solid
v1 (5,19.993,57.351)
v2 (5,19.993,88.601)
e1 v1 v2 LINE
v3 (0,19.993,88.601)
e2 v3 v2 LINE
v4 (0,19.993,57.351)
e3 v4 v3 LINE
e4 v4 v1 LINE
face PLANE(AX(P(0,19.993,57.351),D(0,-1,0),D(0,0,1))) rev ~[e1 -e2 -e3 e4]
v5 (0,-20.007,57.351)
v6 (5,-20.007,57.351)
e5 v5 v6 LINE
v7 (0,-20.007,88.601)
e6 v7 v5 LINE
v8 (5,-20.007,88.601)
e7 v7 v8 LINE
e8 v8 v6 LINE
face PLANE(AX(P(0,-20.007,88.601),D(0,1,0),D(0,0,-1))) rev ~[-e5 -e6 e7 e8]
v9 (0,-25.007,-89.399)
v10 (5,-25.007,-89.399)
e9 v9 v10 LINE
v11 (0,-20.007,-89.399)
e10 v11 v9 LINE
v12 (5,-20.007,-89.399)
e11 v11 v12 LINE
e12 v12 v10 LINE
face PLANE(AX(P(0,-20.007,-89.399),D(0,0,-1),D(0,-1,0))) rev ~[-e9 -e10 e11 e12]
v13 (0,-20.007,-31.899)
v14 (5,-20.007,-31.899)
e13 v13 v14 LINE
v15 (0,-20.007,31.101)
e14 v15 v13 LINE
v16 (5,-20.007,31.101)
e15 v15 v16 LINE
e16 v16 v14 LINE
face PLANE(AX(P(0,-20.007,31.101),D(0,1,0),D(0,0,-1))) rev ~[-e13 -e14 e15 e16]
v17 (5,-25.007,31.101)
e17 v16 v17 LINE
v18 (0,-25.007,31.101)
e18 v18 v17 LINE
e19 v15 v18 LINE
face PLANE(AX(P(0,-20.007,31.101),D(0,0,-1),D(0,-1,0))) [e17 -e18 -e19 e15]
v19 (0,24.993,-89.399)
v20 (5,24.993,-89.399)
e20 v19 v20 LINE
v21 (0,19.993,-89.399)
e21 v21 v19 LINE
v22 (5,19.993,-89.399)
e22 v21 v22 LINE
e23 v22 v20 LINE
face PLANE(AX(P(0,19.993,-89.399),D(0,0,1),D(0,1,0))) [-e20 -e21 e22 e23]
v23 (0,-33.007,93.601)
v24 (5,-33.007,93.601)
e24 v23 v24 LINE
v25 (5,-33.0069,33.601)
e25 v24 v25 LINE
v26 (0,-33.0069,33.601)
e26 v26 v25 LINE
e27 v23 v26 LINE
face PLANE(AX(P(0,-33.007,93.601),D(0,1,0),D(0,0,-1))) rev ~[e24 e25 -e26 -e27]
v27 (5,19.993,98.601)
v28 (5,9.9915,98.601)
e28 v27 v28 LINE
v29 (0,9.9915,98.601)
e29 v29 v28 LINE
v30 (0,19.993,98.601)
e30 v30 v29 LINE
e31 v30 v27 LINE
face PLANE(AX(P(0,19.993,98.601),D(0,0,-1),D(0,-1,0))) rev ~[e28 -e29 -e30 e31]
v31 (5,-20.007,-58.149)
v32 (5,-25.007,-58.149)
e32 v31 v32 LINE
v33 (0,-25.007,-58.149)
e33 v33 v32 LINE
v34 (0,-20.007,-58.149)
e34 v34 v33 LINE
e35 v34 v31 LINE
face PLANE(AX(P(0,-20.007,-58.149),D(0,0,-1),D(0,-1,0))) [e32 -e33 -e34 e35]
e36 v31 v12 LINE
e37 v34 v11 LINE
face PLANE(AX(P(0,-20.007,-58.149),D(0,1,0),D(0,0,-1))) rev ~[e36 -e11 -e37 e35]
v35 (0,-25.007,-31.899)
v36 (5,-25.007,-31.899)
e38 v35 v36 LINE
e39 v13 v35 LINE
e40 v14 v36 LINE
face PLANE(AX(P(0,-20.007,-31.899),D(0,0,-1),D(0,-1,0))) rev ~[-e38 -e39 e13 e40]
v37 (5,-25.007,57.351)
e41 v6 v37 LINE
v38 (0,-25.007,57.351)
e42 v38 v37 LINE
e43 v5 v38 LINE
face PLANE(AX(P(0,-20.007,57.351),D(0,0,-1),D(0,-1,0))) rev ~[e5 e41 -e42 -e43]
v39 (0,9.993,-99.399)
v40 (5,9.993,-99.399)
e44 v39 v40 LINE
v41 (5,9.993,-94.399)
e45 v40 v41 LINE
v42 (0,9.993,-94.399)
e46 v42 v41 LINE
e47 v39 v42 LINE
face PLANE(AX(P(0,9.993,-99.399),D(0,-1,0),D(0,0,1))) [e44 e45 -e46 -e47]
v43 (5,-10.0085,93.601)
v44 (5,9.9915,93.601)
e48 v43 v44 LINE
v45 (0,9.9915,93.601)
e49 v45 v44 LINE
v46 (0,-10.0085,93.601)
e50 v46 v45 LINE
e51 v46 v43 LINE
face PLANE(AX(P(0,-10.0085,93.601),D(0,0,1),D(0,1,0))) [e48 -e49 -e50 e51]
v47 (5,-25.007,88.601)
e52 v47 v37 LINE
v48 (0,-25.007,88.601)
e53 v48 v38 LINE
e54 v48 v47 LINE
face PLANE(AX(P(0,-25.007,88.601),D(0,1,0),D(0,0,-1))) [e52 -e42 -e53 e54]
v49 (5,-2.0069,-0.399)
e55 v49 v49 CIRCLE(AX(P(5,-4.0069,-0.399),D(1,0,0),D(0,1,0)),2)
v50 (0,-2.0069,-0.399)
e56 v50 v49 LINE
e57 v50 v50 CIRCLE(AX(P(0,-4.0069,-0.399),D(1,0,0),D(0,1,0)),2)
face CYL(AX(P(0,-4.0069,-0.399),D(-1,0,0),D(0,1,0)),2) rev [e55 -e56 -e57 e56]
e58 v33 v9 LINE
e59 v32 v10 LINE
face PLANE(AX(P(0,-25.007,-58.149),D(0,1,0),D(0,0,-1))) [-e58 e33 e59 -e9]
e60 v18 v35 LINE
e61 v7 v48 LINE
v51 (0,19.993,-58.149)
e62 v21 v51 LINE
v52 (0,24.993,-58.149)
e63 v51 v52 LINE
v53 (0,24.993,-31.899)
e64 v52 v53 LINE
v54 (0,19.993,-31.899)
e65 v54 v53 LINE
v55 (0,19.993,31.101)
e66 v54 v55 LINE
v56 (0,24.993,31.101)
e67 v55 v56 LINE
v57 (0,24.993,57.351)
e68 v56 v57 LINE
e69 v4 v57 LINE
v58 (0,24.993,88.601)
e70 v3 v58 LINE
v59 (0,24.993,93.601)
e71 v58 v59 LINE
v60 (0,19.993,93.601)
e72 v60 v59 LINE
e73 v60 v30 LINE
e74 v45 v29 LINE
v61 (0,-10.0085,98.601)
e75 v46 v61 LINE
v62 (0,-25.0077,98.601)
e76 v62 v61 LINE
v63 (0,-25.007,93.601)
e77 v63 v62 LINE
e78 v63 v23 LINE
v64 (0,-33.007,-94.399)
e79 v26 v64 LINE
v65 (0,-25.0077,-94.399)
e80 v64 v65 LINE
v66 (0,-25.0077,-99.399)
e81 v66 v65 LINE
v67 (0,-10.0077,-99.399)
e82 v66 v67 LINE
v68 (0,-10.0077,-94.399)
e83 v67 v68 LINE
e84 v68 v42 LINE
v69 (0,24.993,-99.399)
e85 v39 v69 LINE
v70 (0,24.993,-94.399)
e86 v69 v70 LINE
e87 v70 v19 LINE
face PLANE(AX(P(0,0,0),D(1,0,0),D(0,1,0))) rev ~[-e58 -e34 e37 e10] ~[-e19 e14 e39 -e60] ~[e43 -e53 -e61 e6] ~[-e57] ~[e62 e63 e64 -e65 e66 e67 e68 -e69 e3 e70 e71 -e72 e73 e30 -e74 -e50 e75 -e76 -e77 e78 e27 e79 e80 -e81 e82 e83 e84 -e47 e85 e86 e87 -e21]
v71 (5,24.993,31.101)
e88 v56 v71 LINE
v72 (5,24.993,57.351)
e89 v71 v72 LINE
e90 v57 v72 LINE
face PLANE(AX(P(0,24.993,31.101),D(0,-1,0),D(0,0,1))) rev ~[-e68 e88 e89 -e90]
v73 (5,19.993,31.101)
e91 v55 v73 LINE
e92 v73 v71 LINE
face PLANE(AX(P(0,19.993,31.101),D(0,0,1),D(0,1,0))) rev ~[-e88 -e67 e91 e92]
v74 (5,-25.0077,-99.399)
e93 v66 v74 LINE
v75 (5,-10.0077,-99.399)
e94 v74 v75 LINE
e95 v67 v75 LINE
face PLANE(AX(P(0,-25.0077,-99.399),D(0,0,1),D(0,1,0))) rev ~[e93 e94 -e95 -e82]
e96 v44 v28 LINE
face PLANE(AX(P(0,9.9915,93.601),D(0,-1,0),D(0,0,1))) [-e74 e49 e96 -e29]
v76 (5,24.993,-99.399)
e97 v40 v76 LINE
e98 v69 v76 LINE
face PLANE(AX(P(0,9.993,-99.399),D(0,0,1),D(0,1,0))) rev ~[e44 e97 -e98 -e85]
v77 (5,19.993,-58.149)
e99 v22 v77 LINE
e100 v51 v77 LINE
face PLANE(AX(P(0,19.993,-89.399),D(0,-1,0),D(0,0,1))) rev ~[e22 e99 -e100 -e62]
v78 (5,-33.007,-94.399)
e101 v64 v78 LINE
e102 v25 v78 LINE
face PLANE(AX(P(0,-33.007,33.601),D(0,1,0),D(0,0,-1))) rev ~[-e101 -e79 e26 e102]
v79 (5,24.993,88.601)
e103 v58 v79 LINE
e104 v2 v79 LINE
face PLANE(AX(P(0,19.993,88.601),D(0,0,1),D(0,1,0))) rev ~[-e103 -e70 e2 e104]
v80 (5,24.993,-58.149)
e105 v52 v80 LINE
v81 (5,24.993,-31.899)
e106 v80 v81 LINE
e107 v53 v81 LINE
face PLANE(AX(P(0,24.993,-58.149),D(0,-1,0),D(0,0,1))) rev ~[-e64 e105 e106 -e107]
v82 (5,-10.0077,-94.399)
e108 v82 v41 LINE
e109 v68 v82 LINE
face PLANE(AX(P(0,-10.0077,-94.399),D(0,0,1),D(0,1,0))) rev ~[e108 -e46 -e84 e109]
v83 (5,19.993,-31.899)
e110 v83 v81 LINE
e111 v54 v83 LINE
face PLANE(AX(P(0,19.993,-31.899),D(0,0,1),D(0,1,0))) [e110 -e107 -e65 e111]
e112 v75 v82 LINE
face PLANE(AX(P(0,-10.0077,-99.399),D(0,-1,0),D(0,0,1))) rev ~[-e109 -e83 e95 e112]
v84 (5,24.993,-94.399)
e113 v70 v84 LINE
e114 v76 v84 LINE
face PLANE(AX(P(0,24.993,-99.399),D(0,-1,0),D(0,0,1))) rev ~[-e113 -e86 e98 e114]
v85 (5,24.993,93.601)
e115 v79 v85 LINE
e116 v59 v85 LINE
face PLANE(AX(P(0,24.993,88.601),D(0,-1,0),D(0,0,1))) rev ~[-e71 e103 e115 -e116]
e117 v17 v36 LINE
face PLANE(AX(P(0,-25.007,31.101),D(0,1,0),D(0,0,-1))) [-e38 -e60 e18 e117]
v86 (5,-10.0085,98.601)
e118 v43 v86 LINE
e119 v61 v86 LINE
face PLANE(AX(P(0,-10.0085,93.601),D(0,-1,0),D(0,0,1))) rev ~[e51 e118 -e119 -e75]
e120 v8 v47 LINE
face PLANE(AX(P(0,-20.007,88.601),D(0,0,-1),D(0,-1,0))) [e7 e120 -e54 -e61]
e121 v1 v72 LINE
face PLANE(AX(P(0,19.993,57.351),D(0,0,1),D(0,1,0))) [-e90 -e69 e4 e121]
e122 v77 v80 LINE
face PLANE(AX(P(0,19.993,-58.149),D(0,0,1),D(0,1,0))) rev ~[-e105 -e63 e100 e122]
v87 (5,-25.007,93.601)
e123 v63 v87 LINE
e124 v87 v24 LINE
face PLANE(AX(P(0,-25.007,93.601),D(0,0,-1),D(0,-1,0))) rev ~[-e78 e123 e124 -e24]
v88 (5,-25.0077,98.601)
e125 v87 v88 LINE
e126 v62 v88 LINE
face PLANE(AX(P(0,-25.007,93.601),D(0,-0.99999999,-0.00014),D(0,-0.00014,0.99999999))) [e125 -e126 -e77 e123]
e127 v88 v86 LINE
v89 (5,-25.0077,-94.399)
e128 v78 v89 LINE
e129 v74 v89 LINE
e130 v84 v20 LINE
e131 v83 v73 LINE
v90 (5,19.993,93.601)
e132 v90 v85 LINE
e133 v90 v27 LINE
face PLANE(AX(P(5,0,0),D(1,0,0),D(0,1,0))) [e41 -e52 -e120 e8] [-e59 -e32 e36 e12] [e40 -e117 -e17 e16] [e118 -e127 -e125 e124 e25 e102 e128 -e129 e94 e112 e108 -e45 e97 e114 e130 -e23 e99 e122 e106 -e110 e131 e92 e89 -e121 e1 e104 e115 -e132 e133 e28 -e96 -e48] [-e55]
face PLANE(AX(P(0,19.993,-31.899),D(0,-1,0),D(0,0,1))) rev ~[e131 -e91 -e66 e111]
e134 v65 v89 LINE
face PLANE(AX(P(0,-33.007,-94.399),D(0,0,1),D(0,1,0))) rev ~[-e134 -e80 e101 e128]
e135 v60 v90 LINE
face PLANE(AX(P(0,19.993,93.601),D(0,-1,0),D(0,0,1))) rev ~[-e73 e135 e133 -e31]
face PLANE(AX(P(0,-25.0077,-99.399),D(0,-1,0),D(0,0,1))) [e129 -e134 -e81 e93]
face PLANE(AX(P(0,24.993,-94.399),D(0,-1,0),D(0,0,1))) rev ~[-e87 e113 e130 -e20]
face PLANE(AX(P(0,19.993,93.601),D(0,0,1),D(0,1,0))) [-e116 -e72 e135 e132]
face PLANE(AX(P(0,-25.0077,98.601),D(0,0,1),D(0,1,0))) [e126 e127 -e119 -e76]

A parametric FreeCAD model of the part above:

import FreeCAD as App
import Part
import Sketcher
Q = App.Units.Quantity


def add_polygon(sketch, points):
    """Adds a closed chain of lines whose ends are joined by coincident constraints."""
    first, n = sketch.GeometryCount, len(points)
    for a, b in zip(points, points[1:] + points[:1]):
        sketch.addGeometry(Part.LineSegment(App.Vector(*a, 0), App.Vector(*b, 0)), False)
    for i in range(n):
        sketch.addConstraint(Sketcher.Constraint("Coincident", first + i, 2, first + (i + 1) % n, 1))

doc = App.newDocument("Part")
body = doc.addObject("PartDesign::Body", "Body")

sketch1 = body.newObject("Sketcher::SketchObject", "Sketch")
sketch1.AttachmentSupport = (doc.getObject("YZ_Plane"), [""])
sketch1.MapMode = "FlatFace"
add_polygon(sketch1, [(24.993, 93.601), (19.993, 93.601), (19.993, 98.601), (9.9915, 98.601), (9.9915, 93.601), (-10.0085, 93.601), (-10.0085, 98.601), (-25.0077, 98.601), (-25.007, 93.601), (-33.007, 93.601), (-33.007, -94.399), (-25.0077, -94.399), (-25.0077, -99.399), (-10.0077, -99.399), (-10.0077, -94.399), (9.993, -94.399), (9.993, -99.399), (24.993, -99.399), (24.993, -89.399), (19.993, -89.399), (19.993, -58.149), (24.993, -58.149), (24.993, -31.899), (19.993, -31.899), (19.993, 31.101), (24.993, 31.101), (24.993, 57.351), (19.993, 57.351), (19.993, 88.601), (24.993, 88.601)])
add_polygon(sketch1, [(-25.007, -58.149), (-20.007, -58.149), (-20.007, -89.399), (-25.007, -89.399)])
add_polygon(sketch1, [(-25.007, 31.101), (-20.007, 31.101), (-20.007, -31.899), (-25.007, -31.899)])
add_polygon(sketch1, [(-25.007, 88.601), (-20.007, 88.601), (-20.007, 57.351), (-25.007, 57.351)])
sketch1.addGeometry(Part.Circle(App.Vector(-4.0069, -0.399, 0), App.Vector(0, 0, 1), 2), False)
sketch1.addConstraint([
    Sketcher.Constraint("Horizontal", 0),
    Sketcher.Constraint("Vertical", 1),
    Sketcher.Constraint("Horizontal", 2),
    Sketcher.Constraint("Vertical", 3),
    Sketcher.Constraint("Horizontal", 4),
    Sketcher.Constraint("Vertical", 5),
    Sketcher.Constraint("Horizontal", 6),
    Sketcher.Constraint("Horizontal", 8),
    Sketcher.Constraint("Vertical", 9),
    Sketcher.Constraint("Horizontal", 10),
    Sketcher.Constraint("Vertical", 11),
    Sketcher.Constraint("Horizontal", 12),
    Sketcher.Constraint("Vertical", 13),
    Sketcher.Constraint("Horizontal", 14),
    Sketcher.Constraint("Vertical", 15),
    Sketcher.Constraint("Horizontal", 16),
    Sketcher.Constraint("Vertical", 17),
    Sketcher.Constraint("Horizontal", 18),
    Sketcher.Constraint("Vertical", 19),
    Sketcher.Constraint("Horizontal", 20),
    Sketcher.Constraint("Vertical", 21),
    Sketcher.Constraint("Horizontal", 22),
    Sketcher.Constraint("Vertical", 23),
    Sketcher.Constraint("Horizontal", 24),
    Sketcher.Constraint("Vertical", 25),
    Sketcher.Constraint("Horizontal", 26),
    Sketcher.Constraint("Vertical", 27),
    Sketcher.Constraint("Horizontal", 28),
    Sketcher.Constraint("Vertical", 29),
    Sketcher.Constraint("Horizontal", 30),
    Sketcher.Constraint("Vertical", 31),
    Sketcher.Constraint("Horizontal", 32),
    Sketcher.Constraint("Vertical", 33),
    Sketcher.Constraint("Horizontal", 34),
    Sketcher.Constraint("Vertical", 35),
    Sketcher.Constraint("Horizontal", 36),
    Sketcher.Constraint("Vertical", 37),
    Sketcher.Constraint("Horizontal", 38),
    Sketcher.Constraint("Vertical", 39),
    Sketcher.Constraint("Horizontal", 40),
    Sketcher.Constraint("Vertical", 41),
    Sketcher.Constraint("Horizontal", 0, 2, 3, 2),
    Sketcher.Constraint("Horizontal", 2, 2, 5, 2),
    Sketcher.Constraint("Horizontal", 4, 2, 7, 2),
    Sketcher.Constraint("Horizontal", 10, 2, 13, 2),
    Sketcher.Constraint("Horizontal", 12, 2, 15, 2),
    Sketcher.Constraint("Horizontal", 20, 2, 30, 2),
    Sketcher.Constraint("Horizontal", 18, 2, 31, 2),
    Sketcher.Constraint("Horizontal", 24, 2, 34, 2),
    Sketcher.Constraint("Horizontal", 22, 2, 35, 2),
    Sketcher.Constraint("Horizontal", 28, 2, 38, 2),
    Sketcher.Constraint("Horizontal", 26, 2, 39, 2),
    Sketcher.Constraint("Vertical", 6, 2, 10, 2),
    Sketcher.Constraint("Vertical", 1, 2, 18, 2),
    Sketcher.Constraint("Vertical", 17, 2, 20, 2),
    Sketcher.Constraint("Vertical", 19, 2, 22, 2),
    Sketcher.Constraint("Vertical", 21, 2, 24, 2),
    Sketcher.Constraint("Vertical", 23, 2, 26, 2),
    Sketcher.Constraint("Vertical", 25, 2, 28, 2),
    Sketcher.Constraint("Vertical", 7, 2, 32, 2),
    Sketcher.Constraint("Vertical", 31, 2, 34, 2),
    Sketcher.Constraint("Vertical", 33, 2, 36, 2),
    Sketcher.Constraint("Vertical", 35, 2, 38, 2),
    Sketcher.Constraint("Vertical", 37, 2, 40, 2),
    Sketcher.Constraint("Equal", 12, 16),
    Sketcher.Constraint("Equal", 28, 30),
    Sketcher.Constraint("Equal", 40, 1),
    Sketcher.Constraint("Equal", 5, 11),
    Sketcher.Constraint("Equal", 21, 25),
    Sketcher.Constraint("Equal", 19, 27),
    Sketcher.Constraint("Equal", 15, 29),
    Sketcher.Constraint("Diameter", 42, Q("4 mm")),
    Sketcher.Constraint("DistanceX", 0, 2, 0, 1, Q("5 mm")),
    Sketcher.Constraint("DistanceX", 8, 2, 8, 1, Q("8 mm")),
    Sketcher.Constraint("DistanceY", 9, 2, 9, 1, Q("188 mm")),
    Sketcher.Constraint("DistanceX", 42, 3, 0, 2, Q("24 mm")),
    Sketcher.Constraint("DistanceY", 14, 2, 17, 2, Q("5 mm")),
    Sketcher.Constraint("DistanceX", 4, 2, 4, 1, Q("20 mm")),
    Sketcher.Constraint("DistanceX", 12, 1, 12, 2, Q("15 mm")),
    Sketcher.Constraint("DistanceY", 23, 1, 23, 2, Q("63 mm")),
    Sketcher.Constraint("DistanceY", 42, 3, 0, 2, Q("94 mm")),
    Sketcher.Constraint("DistanceX", 9, 2, 42, 3, Q("29 mm")),
    Sketcher.Constraint("DistanceY", 19, 1, 19, 2, Q("31.25 mm")),
    Sketcher.Constraint("DistanceX", 2, 2, 2, 1, Q("10.0015 mm")),
    Sketcher.Constraint("DistanceX", 6, 2, 6, 1, Q("14.9992 mm")),
    Sketcher.Constraint("DistanceX", 42, 3, -1, 1, Q("4.007 mm")),
    Sketcher.Constraint("DistanceY", 42, 3, -1, 1, Q("0.399 mm")),
])
pad1 = body.newObject("PartDesign::Pad", "Pad")
pad1.Profile = sketch1
pad1.Length = 5

doc.recompute()
